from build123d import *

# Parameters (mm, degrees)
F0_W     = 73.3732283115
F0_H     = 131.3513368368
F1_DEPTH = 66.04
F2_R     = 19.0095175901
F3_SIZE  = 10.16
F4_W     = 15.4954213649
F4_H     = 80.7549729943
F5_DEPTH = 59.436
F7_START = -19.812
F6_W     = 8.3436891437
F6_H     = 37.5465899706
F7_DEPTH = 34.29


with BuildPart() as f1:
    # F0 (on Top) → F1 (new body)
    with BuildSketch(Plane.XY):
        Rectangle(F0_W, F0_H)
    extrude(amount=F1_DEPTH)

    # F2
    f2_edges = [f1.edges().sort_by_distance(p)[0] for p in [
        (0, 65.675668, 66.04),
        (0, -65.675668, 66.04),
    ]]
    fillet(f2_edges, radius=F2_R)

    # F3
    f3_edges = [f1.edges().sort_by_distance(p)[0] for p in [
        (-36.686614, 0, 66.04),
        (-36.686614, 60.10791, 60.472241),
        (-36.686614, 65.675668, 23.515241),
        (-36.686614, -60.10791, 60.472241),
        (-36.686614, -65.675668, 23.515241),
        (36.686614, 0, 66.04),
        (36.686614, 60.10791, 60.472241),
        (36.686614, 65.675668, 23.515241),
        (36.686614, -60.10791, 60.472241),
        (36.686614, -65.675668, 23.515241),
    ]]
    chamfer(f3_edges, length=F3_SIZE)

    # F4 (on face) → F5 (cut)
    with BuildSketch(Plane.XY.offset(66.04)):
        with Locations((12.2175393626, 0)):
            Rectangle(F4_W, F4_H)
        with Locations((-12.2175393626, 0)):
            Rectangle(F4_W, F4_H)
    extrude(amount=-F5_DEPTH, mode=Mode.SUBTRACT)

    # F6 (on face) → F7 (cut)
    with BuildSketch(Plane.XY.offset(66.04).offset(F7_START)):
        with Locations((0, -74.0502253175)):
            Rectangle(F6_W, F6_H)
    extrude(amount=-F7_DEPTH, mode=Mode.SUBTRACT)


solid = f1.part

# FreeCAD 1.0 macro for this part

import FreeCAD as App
import Part
import Sketcher
from FreeCAD import Vector
Q = App.Units.Quantity


def edges_at(feature, points):
    """Names of the edges that pass closest to the given points."""
    edges = feature.Shape.Edges
    near = lambda p: min(range(len(edges)), key=lambda i: edges[i].distToShape(Part.Vertex(*p))[0])
    return sorted({f"Edge{near(p) + 1}" for p in points})


def add_polygon(sketch, points):
    """Adds a closed chain of lines whose ends are joined by coincident constraints."""
    first, n = sketch.GeometryCount, len(points)
    for a, b in zip(points, points[1:] + points[:1]):
        sketch.addGeometry(Part.LineSegment(App.Vector(*a, 0), App.Vector(*b, 0)), False)
    for i in range(n):
        sketch.addConstraint(Sketcher.Constraint("Coincident", first + i, 2, first + (i + 1) % n, 1))

doc = App.newDocument("Part")
body = doc.addObject("PartDesign::Body", "Body")

# Sketch on XY plane
sketch1 = body.newObject("Sketcher::SketchObject", "Sketch")
sketch1.AttachmentSupport = (doc.getObject("XY_Plane"), [""])
sketch1.MapMode = "FlatFace"
add_polygon(sketch1, [(-37, 66), (-37, -66), (37, -66), (37, 66)])  # lines 0-3
sketch1.addConstraint(Sketcher.Constraint("Vertical", 0))
sketch1.addConstraint(Sketcher.Constraint("Horizontal", 1))
sketch1.addConstraint(Sketcher.Constraint("Vertical", 2))
sketch1.addConstraint(Sketcher.Constraint("Horizontal", 3))
sketch1.addConstraint(Sketcher.Constraint("Symmetric", 0, 2, 2, 2, -1, 1))
sketch1.addConstraint(Sketcher.Constraint("DistanceX", 1, 1, 1, 2, Q("73.373228 mm")))
sketch1.addConstraint(Sketcher.Constraint("DistanceY", 0, 2, 0, 1, Q("131.351337 mm")))
pad1 = body.newObject("PartDesign::Pad", "Pad")
pad1.Profile = sketch1
pad1.Length = Q("2.6 in")
doc.recompute()

fillet = body.newObject("PartDesign::Fillet", "Fillet")
fillet.Base = (pad1, edges_at(pad1, [(0, 65.676, 66.04), (0, -65.676, 66.04)]))
fillet.Radius = 19.009518
doc.recompute()

chamfer = body.newObject("PartDesign::Chamfer", "Chamfer")
chamfer.Base = (fillet, edges_at(fillet, [
    (-36.687, 0, 66.04),
    (-36.687, 60.108, 60.472),
    (-36.687, 65.676, 23.515),
    (-36.687, -60.108, 60.472),
    (-36.687, -65.676, 23.515),
    (36.687, 0, 66.04),
    (36.687, 60.108, 60.472),
    (36.687, 65.676, 23.515),
    (36.687, -60.108, 60.472),
    (36.687, -65.676, 23.515),
]))
chamfer.Size = Q("0.4 in")

# Sketch on XY plane
sketch2 = body.newObject("Sketcher::SketchObject", "Sketch001")
sketch2.AttachmentSupport = (doc.getObject("XY_Plane"), [""])
sketch2.MapMode = "FlatFace"
sketch2.AttachmentOffset = App.Placement(Vector(0, 0, 2.6 * 25.4), App.Rotation())
add_polygon(sketch2, [(4, 40), (4, -40), (20, -40), (20, 40)])  # lines 0-3
add_polygon(sketch2, [(-20, 40), (-20, -40), (-4, -40), (-4, 40)])  # lines 4-7
sketch2.addConstraint(Sketcher.Constraint("Vertical", 0))
sketch2.addConstraint(Sketcher.Constraint("Horizontal", 1))
sketch2.addConstraint(Sketcher.Constraint("Vertical", 2))
sketch2.addConstraint(Sketcher.Constraint("Horizontal", 3))
sketch2.addConstraint(Sketcher.Constraint("Vertical", 4))
sketch2.addConstraint(Sketcher.Constraint("Horizontal", 5))
sketch2.addConstraint(Sketcher.Constraint("Vertical", 6))
sketch2.addConstraint(Sketcher.Constraint("Horizontal", 7))
sketch2.addConstraint(Sketcher.Constraint("Symmetric", 2, 2, 4, 2, -1, 1))
sketch2.addConstraint(Sketcher.Constraint("Symmetric", 0, 2, 6, 2, -1, 1))
sketch2.addConstraint(Sketcher.Constraint("Horizontal", 1, 2, 4, 2))
sketch2.addConstraint(Sketcher.Constraint("DistanceX", 1, 1, 1, 2, Q("15.495421 mm")))
sketch2.addConstraint(Sketcher.Constraint("DistanceX", 4, 2, 1, 2, Q("39.9305 mm")))
sketch2.addConstraint(Sketcher.Constraint("DistanceY", 0, 2, 0, 1, Q("80.754973 mm")))
pocket1 = body.newObject("PartDesign::Pocket", "Pocket")
pocket1.Profile = sketch2
pocket1.Length = Q("2.34 in")

# Sketch on XY plane
sketch3 = body.newObject("Sketcher::SketchObject", "Sketch002")
sketch3.AttachmentSupport = (doc.getObject("XY_Plane"), [""])
sketch3.MapMode = "FlatFace"
sketch3.AttachmentOffset = App.Placement(Vector(0, 0, 1.82 * 25.4), App.Rotation())
add_polygon(sketch3, [(-4, -55), (-4, -93), (4, -93), (4, -55)])  # lines 0-3
sketch3.addConstraint(Sketcher.Constraint("Vertical", 0))
sketch3.addConstraint(Sketcher.Constraint("Horizontal", 1))
sketch3.addConstraint(Sketcher.Constraint("Vertical", 2))
sketch3.addConstraint(Sketcher.Constraint("Horizontal", 3))
sketch3.addConstraint(Sketcher.Constraint("DistanceX", 1, 1, 1, 2, Q("8.343689 mm")))
sketch3.addConstraint(Sketcher.Constraint("DistanceY", 0, 2, 0, 1, Q("37.54659 mm")))
sketch3.addConstraint(Sketcher.Constraint("DistanceY", 0, 2, -1, 1, Q("92.82352 mm")))
sketch3.addConstraint(Sketcher.Constraint("DistanceX", 0, 2, -1, 1, Q("4.171845 mm")))
pocket2 = body.newObject("PartDesign::Pocket", "Pocket001")
pocket2.Profile = sketch3
pocket2.Length = Q("1.35 in")

doc.recompute()
